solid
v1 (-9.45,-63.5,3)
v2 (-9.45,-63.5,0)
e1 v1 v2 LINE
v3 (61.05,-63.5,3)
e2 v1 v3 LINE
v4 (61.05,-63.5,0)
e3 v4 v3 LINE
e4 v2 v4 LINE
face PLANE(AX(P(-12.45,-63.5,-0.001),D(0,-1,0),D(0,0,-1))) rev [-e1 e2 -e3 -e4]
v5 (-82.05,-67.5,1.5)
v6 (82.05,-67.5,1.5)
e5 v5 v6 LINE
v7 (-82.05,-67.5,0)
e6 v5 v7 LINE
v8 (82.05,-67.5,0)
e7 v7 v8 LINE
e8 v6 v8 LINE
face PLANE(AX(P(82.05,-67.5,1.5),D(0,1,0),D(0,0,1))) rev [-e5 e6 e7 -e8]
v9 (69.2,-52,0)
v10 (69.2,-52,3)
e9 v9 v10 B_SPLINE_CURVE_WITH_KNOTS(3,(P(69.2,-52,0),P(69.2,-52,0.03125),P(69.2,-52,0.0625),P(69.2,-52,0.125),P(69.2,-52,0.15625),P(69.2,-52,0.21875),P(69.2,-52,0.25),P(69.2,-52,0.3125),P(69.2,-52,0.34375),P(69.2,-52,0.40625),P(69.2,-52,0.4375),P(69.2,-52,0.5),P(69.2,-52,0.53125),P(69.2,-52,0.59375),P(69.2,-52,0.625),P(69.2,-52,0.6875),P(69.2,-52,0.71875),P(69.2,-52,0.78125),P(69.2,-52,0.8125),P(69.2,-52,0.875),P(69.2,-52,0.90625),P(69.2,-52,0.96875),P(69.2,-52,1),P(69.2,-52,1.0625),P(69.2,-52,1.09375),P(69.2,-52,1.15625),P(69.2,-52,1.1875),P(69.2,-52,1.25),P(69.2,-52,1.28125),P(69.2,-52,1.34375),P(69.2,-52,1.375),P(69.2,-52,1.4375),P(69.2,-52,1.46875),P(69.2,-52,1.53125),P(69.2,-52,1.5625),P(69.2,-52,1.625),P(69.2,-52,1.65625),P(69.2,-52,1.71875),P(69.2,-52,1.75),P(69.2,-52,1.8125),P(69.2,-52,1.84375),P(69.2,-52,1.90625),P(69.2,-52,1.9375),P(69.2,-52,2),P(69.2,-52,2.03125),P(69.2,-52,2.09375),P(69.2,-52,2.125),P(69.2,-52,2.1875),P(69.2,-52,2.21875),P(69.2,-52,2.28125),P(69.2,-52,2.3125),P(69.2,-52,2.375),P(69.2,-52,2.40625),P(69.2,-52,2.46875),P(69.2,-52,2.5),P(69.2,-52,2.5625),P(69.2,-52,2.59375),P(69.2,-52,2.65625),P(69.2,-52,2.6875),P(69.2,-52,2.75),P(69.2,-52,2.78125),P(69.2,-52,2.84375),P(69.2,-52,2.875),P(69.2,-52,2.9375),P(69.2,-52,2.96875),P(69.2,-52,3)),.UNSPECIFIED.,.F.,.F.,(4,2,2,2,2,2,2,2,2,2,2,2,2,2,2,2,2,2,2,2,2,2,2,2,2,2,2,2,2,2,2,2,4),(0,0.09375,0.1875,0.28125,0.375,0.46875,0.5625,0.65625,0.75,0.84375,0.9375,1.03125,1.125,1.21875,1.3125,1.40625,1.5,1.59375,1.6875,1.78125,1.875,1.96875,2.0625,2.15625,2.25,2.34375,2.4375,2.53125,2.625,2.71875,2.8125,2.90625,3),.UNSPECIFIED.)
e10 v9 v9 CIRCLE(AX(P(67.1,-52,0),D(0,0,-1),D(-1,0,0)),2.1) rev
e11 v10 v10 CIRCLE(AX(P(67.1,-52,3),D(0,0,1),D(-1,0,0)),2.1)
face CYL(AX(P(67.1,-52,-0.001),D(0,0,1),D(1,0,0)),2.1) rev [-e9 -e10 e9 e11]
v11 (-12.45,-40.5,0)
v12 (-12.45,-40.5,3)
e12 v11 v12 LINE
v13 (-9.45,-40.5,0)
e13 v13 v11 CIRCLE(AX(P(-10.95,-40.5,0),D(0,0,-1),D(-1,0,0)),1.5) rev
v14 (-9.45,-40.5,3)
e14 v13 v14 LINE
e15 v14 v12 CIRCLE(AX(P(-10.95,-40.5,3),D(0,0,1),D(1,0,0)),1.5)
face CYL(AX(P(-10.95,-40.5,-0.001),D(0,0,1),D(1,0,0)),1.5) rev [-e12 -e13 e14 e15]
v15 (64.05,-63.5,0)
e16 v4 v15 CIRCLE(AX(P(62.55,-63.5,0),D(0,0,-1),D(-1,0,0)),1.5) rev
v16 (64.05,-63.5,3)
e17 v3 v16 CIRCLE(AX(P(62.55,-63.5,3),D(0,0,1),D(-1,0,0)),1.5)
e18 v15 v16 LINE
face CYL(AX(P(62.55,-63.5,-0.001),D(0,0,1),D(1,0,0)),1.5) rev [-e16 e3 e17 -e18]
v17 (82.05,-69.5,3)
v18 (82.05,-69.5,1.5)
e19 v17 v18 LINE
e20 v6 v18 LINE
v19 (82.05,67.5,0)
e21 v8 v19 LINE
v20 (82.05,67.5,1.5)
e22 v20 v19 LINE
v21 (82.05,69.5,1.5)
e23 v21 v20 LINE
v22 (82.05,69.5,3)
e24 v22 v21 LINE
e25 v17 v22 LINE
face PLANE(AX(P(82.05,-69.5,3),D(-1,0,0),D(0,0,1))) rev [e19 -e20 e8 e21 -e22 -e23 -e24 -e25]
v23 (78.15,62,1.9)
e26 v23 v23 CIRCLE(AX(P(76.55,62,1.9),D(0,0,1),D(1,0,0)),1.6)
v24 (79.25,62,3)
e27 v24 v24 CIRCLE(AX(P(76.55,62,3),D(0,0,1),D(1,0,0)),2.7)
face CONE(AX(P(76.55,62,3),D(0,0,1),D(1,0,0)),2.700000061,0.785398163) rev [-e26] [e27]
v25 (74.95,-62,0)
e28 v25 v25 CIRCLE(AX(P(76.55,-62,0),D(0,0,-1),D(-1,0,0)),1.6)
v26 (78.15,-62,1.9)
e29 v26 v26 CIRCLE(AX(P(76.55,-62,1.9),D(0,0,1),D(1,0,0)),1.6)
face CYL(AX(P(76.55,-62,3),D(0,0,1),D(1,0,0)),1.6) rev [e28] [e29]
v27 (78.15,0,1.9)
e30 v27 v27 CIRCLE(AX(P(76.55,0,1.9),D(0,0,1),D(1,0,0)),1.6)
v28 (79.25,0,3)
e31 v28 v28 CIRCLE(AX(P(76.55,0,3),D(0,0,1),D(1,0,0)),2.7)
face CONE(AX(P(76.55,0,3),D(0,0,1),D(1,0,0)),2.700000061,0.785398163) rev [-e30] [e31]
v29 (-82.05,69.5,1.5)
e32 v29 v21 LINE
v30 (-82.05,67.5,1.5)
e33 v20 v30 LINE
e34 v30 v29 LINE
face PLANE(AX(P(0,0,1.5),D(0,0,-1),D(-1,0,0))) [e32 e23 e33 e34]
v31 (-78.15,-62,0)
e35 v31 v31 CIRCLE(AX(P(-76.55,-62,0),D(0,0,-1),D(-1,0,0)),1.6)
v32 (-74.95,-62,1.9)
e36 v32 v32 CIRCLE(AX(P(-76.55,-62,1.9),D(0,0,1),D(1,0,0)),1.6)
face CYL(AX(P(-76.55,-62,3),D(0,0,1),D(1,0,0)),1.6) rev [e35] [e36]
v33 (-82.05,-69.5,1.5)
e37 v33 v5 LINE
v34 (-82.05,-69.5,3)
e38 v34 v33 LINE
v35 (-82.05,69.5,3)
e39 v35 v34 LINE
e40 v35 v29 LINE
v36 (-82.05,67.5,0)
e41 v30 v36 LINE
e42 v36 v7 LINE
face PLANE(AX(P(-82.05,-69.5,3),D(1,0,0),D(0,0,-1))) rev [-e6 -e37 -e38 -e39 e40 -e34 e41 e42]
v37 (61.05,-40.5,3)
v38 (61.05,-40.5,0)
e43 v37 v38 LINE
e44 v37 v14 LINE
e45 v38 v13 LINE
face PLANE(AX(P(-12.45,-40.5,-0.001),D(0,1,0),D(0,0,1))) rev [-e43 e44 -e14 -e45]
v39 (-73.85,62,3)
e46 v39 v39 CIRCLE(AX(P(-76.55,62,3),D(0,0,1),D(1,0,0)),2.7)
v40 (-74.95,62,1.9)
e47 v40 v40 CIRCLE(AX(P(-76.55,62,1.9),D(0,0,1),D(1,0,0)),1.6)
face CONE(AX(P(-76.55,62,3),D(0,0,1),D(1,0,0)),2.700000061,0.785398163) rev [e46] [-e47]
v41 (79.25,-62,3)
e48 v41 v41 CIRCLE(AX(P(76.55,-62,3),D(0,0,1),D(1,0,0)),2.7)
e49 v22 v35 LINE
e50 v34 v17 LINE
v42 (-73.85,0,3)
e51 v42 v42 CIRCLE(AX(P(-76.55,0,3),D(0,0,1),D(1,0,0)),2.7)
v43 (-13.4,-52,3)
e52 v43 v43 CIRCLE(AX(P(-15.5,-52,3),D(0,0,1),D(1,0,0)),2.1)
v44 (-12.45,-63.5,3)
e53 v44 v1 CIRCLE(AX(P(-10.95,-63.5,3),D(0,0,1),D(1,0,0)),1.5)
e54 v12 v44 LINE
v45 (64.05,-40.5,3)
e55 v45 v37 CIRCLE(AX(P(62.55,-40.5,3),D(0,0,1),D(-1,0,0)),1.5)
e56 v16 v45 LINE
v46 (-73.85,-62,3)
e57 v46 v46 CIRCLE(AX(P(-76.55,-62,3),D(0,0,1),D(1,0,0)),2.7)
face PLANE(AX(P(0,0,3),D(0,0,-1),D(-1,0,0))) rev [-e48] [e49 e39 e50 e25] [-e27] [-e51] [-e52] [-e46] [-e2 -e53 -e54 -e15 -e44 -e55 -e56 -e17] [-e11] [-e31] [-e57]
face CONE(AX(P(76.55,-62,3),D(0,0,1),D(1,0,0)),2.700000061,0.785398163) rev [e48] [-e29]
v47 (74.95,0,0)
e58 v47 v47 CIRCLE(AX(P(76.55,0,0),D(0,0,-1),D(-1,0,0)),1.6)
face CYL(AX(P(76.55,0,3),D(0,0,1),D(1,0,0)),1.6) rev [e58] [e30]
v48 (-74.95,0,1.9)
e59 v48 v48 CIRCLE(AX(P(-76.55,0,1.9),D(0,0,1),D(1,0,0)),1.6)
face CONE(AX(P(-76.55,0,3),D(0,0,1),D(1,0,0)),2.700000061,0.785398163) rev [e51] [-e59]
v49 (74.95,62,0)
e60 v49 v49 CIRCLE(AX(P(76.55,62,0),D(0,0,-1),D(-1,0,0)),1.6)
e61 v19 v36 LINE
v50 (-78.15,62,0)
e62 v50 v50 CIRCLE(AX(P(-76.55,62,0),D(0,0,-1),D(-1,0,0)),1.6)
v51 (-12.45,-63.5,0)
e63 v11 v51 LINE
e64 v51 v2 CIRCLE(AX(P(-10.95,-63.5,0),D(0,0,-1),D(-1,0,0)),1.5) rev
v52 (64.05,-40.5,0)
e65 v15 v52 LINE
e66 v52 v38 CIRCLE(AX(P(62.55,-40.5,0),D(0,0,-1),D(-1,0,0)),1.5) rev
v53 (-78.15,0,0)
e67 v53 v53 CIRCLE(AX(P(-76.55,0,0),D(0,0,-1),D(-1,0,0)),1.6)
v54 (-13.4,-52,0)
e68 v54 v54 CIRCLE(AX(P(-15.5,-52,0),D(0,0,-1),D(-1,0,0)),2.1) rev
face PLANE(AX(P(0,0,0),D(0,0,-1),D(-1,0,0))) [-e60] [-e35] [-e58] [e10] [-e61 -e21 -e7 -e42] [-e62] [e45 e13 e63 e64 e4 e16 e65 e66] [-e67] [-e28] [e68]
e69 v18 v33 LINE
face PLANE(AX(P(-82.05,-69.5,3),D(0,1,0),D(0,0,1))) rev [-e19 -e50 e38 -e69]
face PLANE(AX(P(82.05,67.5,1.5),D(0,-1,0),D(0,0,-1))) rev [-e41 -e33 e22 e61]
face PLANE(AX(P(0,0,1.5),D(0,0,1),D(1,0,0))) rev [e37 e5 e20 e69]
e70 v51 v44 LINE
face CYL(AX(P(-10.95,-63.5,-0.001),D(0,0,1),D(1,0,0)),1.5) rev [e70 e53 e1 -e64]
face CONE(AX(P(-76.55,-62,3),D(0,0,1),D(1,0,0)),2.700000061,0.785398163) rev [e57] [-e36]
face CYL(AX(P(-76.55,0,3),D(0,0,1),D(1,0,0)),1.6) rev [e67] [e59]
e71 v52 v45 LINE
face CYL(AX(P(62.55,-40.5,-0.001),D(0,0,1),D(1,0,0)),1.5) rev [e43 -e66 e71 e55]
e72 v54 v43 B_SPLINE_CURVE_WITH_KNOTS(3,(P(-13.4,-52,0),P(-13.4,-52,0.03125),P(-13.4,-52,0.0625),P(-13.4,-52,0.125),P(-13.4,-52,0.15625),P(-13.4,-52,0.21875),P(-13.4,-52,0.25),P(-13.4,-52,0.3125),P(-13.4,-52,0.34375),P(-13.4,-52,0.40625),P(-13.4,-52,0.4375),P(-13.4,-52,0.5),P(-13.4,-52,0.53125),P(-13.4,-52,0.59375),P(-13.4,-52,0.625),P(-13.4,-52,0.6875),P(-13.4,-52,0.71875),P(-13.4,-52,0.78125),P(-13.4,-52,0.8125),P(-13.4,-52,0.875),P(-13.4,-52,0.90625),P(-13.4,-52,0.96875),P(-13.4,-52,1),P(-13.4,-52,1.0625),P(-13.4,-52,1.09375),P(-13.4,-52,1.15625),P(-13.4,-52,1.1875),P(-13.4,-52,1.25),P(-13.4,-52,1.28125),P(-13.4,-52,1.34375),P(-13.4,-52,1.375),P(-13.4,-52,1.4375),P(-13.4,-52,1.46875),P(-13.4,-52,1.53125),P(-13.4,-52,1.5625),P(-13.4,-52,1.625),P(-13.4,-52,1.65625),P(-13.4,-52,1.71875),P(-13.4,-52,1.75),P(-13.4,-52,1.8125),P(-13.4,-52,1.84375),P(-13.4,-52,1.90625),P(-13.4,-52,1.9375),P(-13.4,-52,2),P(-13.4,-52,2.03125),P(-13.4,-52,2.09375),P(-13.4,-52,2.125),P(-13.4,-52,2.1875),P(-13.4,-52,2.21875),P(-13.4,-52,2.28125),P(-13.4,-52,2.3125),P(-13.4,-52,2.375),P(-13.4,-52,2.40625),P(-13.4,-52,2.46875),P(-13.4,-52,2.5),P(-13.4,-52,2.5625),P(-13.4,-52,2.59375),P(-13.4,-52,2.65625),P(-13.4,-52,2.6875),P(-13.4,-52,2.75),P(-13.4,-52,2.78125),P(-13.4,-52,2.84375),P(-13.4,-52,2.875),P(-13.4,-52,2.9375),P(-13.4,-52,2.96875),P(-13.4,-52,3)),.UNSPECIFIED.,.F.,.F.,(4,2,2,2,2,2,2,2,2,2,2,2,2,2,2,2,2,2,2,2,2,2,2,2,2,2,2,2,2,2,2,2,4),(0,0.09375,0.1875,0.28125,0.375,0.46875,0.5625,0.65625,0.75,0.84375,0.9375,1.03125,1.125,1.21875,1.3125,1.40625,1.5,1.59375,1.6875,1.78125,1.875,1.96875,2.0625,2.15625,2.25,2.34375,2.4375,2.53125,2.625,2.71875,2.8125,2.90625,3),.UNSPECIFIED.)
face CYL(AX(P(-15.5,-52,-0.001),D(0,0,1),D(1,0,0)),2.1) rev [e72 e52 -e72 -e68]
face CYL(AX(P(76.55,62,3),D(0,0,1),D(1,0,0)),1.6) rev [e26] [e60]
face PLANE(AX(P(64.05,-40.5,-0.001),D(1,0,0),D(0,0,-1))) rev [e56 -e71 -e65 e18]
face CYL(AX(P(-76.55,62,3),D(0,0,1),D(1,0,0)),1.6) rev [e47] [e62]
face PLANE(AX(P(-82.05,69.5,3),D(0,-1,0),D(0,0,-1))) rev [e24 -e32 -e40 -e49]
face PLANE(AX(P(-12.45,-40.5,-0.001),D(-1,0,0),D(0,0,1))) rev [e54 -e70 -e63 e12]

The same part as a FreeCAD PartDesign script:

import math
import FreeCAD as App
import Part
import Sketcher


def add_polygon(sketch, points):
    """Adds a closed chain of lines whose ends are joined by coincident constraints."""
    first, n = sketch.GeometryCount, len(points)
    for a, b in zip(points, points[1:] + points[:1]):
        sketch.addGeometry(Part.LineSegment(App.Vector(*a, 0), App.Vector(*b, 0)), False)
    for i in range(n):
        sketch.addConstraint(Sketcher.Constraint("Coincident", first + i, 2, first + (i + 1) % n, 1))

doc = App.newDocument("Part")
params = doc.addObject("Spreadsheet::Sheet", "Params")
for row, (alias, value) in enumerate([
    ("sketch1_height", "139 mm"),
    ("sketch1_width", "164.1 mm"),
    ("pad1_length", "3 mm"),
    ("sketch2_diameter", "3.2 mm"),
    ("hole_diameter", "3.2 mm"),
    ("hole_csink_diameter", "5.4 mm"),
    ("sketch3_diameter", "4.2 mm"),
    ("sketch4_diameter", "4.2 mm"),
    ("sketch5_height", "23 mm"),
    ("sketch5_width", "76.5 mm"),
    ("sketch6_radius", "1.5 mm"),
    ("sketch6_height", "23 mm"),
    ("pocket4_length", "3 mm"),
    ("sketch7_height", "2 mm"),
    ("sketch7_width", "164.1 mm"),
    ("pocket5_length", "1.5 mm"),
], start=1):
    params.set(f"A{row}", alias)
    params.set(f"B{row}", "=" + value)
    params.setAlias(f"B{row}", alias)

body = doc.addObject("PartDesign::Body", "Body")

# Sketch on XY plane
sketch1 = body.newObject("Sketcher::SketchObject", "Sketch")
sketch1.AttachmentSupport = (doc.getObject("XY_Plane"), [""])
sketch1.MapMode = "FlatFace"
add_polygon(sketch1, [(-82, 70), (-82, -70), (82, -70), (82, 70)])  # lines 0-3
sketch1.addConstraint([
    Sketcher.Constraint("Vertical", 0),
    Sketcher.Constraint("Horizontal", 1),
    Sketcher.Constraint("Vertical", 2),
    Sketcher.Constraint("Horizontal", 3),
    Sketcher.Constraint("Symmetric", 0, 2, 2, 2, -1, 1),
    Sketcher.Constraint("DistanceY", 0, 2, 0, 1, 139.0),
    Sketcher.Constraint("DistanceX", 1, 1, 1, 2, 164.1),
])
sketch1.setExpression("Constraints[9]", "Params.sketch1_height")
sketch1.setExpression("Constraints[10]", "Params.sketch1_width")
pad1 = body.newObject("PartDesign::Pad", "Pad")
pad1.Profile = sketch1
pad1.setExpression("Length", "Params.pad1_length")

# Sketch on XY plane
sketch2 = body.newObject("Sketcher::SketchObject", "Sketch001")
sketch2.AttachmentSupport = (doc.getObject("XY_Plane"), [""])
sketch2.MapMode = "FlatFace"
sketch2.AttachmentOffset = App.Placement(App.Vector(0, 0, 3), App.Rotation())
sketch2.addGeometry([
    Part.Circle(App.Vector(-76.5, 62, 0), App.Vector(0, 0, 1), 1.6),  # 0
    Part.Circle(App.Vector(-76.5, 0, 0), App.Vector(0, 0, 1), 1.6),  # 1
    Part.Circle(App.Vector(-76.5, -62, 0), App.Vector(0, 0, 1), 1.6),  # 2
    Part.Circle(App.Vector(76.5, -62, 0), App.Vector(0, 0, 1), 1.6),  # 3
    Part.Circle(App.Vector(76.5, 0, 0), App.Vector(0, 0, 1), 1.6),  # 4
    Part.Circle(App.Vector(76.5, 62, 0), App.Vector(0, 0, 1), 1.6),  # 5
], False)
sketch2.addConstraint([
    Sketcher.Constraint("Equal", 0, 1),
    Sketcher.Constraint("Equal", 1, 2),
    Sketcher.Constraint("Equal", 2, 3),
    Sketcher.Constraint("Equal", 3, 4),
    Sketcher.Constraint("Equal", 4, 5),
    Sketcher.Constraint("Symmetric", 0, 3, 3, 3, -1, 1),
    Sketcher.Constraint("Symmetric", 1, 3, 4, 3, -1, 1),
    Sketcher.Constraint("Symmetric", 2, 3, 5, 3, -1, 1),
    Sketcher.Constraint("Symmetric", 2, 3, 3, 3, -2),
    Sketcher.Constraint("PointOnObject", 1, 3, -1),
    Sketcher.Constraint("Vertical", 0, 3, 1, 3),
    Sketcher.Constraint("Diameter", 0, 3.2),
    Sketcher.Constraint("DistanceY", -1, 1, 0, 3, 62.0),
    Sketcher.Constraint("DistanceX", 2, 3, 3, 3, 153.1),
])
sketch2.setExpression("Constraints[11]", "Params.sketch2_diameter")
doc.recompute()
hole = body.newObject("PartDesign::Hole", "Hole")
hole.Profile = sketch2
hole.ThreadType = "None"
hole.setExpression("Diameter", "Params.hole_diameter")
hole.DepthType = "ThroughAll"
hole.HoleCutType = "Countersink"
hole.setExpression("HoleCutDiameter", "Params.hole_csink_diameter")
hole.HoleCutCountersinkAngle = 90

# Sketch on XY plane
sketch3 = body.newObject("Sketcher::SketchObject", "Sketch002")
sketch3.AttachmentSupport = (doc.getObject("XY_Plane"), [""])
sketch3.MapMode = "FlatFace"
sketch3.AttachmentOffset = App.Placement(App.Vector(0, 0, 3), App.Rotation())
sketch3.addGeometry(Part.Circle(App.Vector(-15.5, -52, 0), App.Vector(0, 0, 1), 2.1), False)
sketch3.addConstraint([
    Sketcher.Constraint("Diameter", 0, 4.2),
    Sketcher.Constraint("DistanceY", 0, 3, -1, 1, 52.0),
    Sketcher.Constraint("DistanceX", 0, 3, -1, 1, 15.5),
])
sketch3.setExpression("Constraints[0]", "Params.sketch3_diameter")
pocket1 = body.newObject("PartDesign::Pocket", "Pocket")
pocket1.Profile = sketch3
pocket1.Type = "UpToFirst"

# Sketch on XY plane
sketch4 = body.newObject("Sketcher::SketchObject", "Sketch003")
sketch4.AttachmentSupport = (doc.getObject("XY_Plane"), [""])
sketch4.MapMode = "FlatFace"
sketch4.AttachmentOffset = App.Placement(App.Vector(0, 0, 3), App.Rotation())
sketch4.addGeometry(Part.Circle(App.Vector(67.1, -52, 0), App.Vector(0, 0, 1), 2.1), False)
sketch4.addConstraint([
    Sketcher.Constraint("Diameter", 0, 4.2),
    Sketcher.Constraint("DistanceY", 0, 3, -1, 1, 52.0),
    Sketcher.Constraint("DistanceX", -1, 1, 0, 3, 67.1),
])
sketch4.setExpression("Constraints[0]", "Params.sketch4_diameter")
pocket2 = body.newObject("PartDesign::Pocket", "Pocket001")
pocket2.Profile = sketch4
pocket2.Type = "UpToFirst"

# Sketch on XY plane
sketch5 = body.newObject("Sketcher::SketchObject", "Sketch004")
sketch5.AttachmentSupport = (doc.getObject("XY_Plane"), [""])
sketch5.MapMode = "FlatFace"
sketch5.AttachmentOffset = App.Placement(App.Vector(0, 0, 3), App.Rotation())
add_polygon(sketch5, [(-12, -40), (-12, -64), (64, -64), (64, -40)])  # lines 0-3
sketch5.addConstraint([
    Sketcher.Constraint("Vertical", 0),
    Sketcher.Constraint("Horizontal", 1),
    Sketcher.Constraint("Vertical", 2),
    Sketcher.Constraint("Horizontal", 3),
    Sketcher.Constraint("DistanceY", 0, 2, 0, 1, 23.0),
    Sketcher.Constraint("DistanceX", 1, 1, 1, 2, 76.5),
    Sketcher.Constraint("DistanceY", 0, 2, -1, 1, 63.5),
    Sketcher.Constraint("DistanceX", 0, 2, -1, 1, 12.45),
])
sketch5.setExpression("Constraints[8]", "Params.sketch5_height")
sketch5.setExpression("Constraints[9]", "Params.sketch5_width")
pocket3 = body.newObject("PartDesign::Pocket", "Pocket002")
pocket3.Profile = sketch5
pocket3.Type = "UpToFirst"

# Sketch on XY plane
sketch6 = body.newObject("Sketcher::SketchObject", "Sketch005")
sketch6.AttachmentSupport = (doc.getObject("XY_Plane"), [""])
sketch6.MapMode = "FlatFace"
sketch6.addGeometry([
    Part.LineSegment(App.Vector(-12.4, -40.5, 0), App.Vector(-12.4, -63.5, 0)),  # 0
    Part.ArcOfCircle(Part.Circle(App.Vector(-10.9, -63.5, 0), App.Vector(0, 0, 1), 1.5), math.radians(180), math.radians(360)),  # 1
    Part.LineSegment(App.Vector(-9.4, -63.5, 0), App.Vector(-9.4, -40.5, 0)),  # 2
    Part.ArcOfCircle(Part.Circle(App.Vector(-10.9, -40.5, 0), App.Vector(0, 0, 1), 1.5), math.radians(0), math.radians(180)),  # 3
    Part.LineSegment(App.Vector(64, -63.5, 0), App.Vector(64, -40.5, 0)),  # 4
    Part.ArcOfCircle(Part.Circle(App.Vector(62.5, -40.5, 0), App.Vector(0, 0, 1), 1.5), math.radians(0), math.radians(180)),  # 5
    Part.LineSegment(App.Vector(61, -40.5, 0), App.Vector(61, -63.5, 0)),  # 6
    Part.ArcOfCircle(Part.Circle(App.Vector(62.5, -63.5, 0), App.Vector(0, 0, 1), 1.5), math.radians(180), math.radians(360)),  # 7
], False)
sketch6.addConstraint([
    Sketcher.Constraint("Tangent", 0, 2, 1, 1),
    Sketcher.Constraint("Tangent", 1, 2, 2, 1),
    Sketcher.Constraint("Tangent", 2, 2, 3, 1),
    Sketcher.Constraint("Tangent", 3, 2, 0, 1),
    Sketcher.Constraint("Tangent", 4, 2, 5, 1),
    Sketcher.Constraint("Tangent", 5, 2, 6, 1),
    Sketcher.Constraint("Tangent", 6, 2, 7, 1),
    Sketcher.Constraint("Tangent", 7, 2, 4, 1),
    Sketcher.Constraint("Vertical", 0),
    Sketcher.Constraint("Vertical", 2),
    Sketcher.Constraint("Vertical", 4),
    Sketcher.Constraint("Vertical", 6),
    Sketcher.Constraint("Equal", 3, 5),
    Sketcher.Constraint("Horizontal", 3, 3, 5, 3),
    Sketcher.Constraint("Horizontal", 1, 3, 7, 3),
    Sketcher.Constraint("Radius", 1, 1.5),
    Sketcher.Constraint("DistanceY", 0, 2, 0, 1, 23.0),
    Sketcher.Constraint("DistanceX", 0, 2, 7, 3, 75.0),
    Sketcher.Constraint("DistanceY", 1, 3, -1, 1, 63.5),
    Sketcher.Constraint("DistanceX", 1, 3, -1, 1, 10.95),
])
sketch6.setExpression("Constraints[15]", "Params.sketch6_radius")
sketch6.setExpression("Constraints[16]", "Params.sketch6_height")
pocket4 = body.newObject("PartDesign::Pocket", "Pocket003")
pocket4.Profile = sketch6
pocket4.setExpression("Length", "Params.pocket4_length")
pocket4.Reversed = True

# Sketch on XY plane
sketch7 = body.newObject("Sketcher::SketchObject", "Sketch006")
sketch7.AttachmentSupport = (doc.getObject("XY_Plane"), [""])
sketch7.MapMode = "FlatFace"
add_polygon(sketch7, [(82, 69.5), (82, 67.5), (-82, 67.5), (-82, 69.5)])  # lines 0-3
add_polygon(sketch7, [(82, -67.5), (82, -69.5), (-82, -69.5), (-82, -67.5)])  # lines 4-7
sketch7.addConstraint([
    Sketcher.Constraint("Vertical", 0),
    Sketcher.Constraint("Horizontal", 1),
    Sketcher.Constraint("Vertical", 2),
    Sketcher.Constraint("Horizontal", 3),
    Sketcher.Constraint("Vertical", 4),
    Sketcher.Constraint("Horizontal", 5),
    Sketcher.Constraint("Vertical", 6),
    Sketcher.Constraint("Horizontal", 7),
    Sketcher.Constraint("Symmetric", 2, 2, 4, 2, -1, 1),
    Sketcher.Constraint("Symmetric", 0, 2, 6, 2, -1, 1),
    Sketcher.Constraint("Vertical", 3, 2, 4, 2),
    Sketcher.Constraint("DistanceY", 0, 2, 0, 1, 2.0),
    Sketcher.Constraint("DistanceX", 1, 2, 1, 1, 164.1),
    Sketcher.Constraint("DistanceY", 4, 2, 0, 2, 137.0),
])
sketch7.setExpression("Constraints[19]", "Params.sketch7_height")
sketch7.setExpression("Constraints[20]", "Params.sketch7_width")
pocket5 = body.newObject("PartDesign::Pocket", "Pocket004")
pocket5.Profile = sketch7
pocket5.setExpression("Length", "Params.pocket5_length")
pocket5.Reversed = True

doc.recompute()
